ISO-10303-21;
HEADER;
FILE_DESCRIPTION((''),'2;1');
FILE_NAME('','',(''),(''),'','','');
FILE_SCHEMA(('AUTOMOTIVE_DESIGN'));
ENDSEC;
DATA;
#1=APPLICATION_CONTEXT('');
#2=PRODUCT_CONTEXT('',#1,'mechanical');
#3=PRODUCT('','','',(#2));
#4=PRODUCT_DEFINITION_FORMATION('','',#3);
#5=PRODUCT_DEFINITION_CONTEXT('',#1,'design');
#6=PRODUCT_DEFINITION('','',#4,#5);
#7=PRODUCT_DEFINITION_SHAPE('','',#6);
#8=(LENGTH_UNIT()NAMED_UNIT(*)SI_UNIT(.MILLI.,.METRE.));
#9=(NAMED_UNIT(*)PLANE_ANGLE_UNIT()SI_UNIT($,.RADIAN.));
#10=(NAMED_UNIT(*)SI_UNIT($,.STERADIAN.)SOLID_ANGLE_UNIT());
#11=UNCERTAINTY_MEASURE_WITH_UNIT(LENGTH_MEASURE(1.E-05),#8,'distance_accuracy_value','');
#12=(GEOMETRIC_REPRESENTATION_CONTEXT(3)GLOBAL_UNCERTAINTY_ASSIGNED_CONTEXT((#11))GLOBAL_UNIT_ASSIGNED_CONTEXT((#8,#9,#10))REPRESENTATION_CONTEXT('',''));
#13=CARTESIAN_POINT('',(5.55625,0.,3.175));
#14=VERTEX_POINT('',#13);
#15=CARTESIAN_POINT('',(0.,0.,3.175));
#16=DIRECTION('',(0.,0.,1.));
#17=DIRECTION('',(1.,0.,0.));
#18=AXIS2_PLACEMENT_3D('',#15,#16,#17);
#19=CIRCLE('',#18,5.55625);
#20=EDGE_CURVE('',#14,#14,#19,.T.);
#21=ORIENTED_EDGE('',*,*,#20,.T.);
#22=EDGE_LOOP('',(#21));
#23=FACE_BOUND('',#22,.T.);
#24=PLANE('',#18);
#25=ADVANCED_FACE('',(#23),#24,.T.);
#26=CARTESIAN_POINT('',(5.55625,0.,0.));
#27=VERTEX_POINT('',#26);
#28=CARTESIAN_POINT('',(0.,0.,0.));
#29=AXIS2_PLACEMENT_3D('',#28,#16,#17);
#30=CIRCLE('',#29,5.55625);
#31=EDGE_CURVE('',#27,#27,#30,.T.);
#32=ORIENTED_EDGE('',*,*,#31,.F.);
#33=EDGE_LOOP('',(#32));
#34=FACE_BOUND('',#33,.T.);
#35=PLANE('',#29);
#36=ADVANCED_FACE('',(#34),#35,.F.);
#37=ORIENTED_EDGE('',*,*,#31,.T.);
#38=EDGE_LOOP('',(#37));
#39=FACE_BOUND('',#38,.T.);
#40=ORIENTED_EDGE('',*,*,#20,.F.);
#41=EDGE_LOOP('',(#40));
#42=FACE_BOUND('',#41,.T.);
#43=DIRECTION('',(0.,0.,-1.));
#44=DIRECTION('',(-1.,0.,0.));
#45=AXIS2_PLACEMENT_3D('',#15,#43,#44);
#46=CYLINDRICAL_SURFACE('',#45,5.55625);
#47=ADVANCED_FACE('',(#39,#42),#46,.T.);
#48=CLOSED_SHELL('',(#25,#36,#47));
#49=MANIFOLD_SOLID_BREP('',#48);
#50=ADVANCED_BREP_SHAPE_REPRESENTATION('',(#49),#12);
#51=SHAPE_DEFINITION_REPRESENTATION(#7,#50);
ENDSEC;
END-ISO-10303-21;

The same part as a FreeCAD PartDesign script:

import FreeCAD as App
import Part
import Sketcher
from FreeCAD import Vector
Q = App.Units.Quantity

doc = App.newDocument("Part")
body = doc.addObject("PartDesign::Body", "Body")

# Sketch on XY plane
sketch1 = body.newObject("Sketcher::SketchObject", "Sketch")
sketch1.AttachmentSupport = (doc.getObject("XY_Plane"), [""])
sketch1.MapMode = "FlatFace"
sketch1.addGeometry(Part.Circle(Vector(0, 0, 0), Vector(0, 0, 1), 5.55625), False)
sketch1.addConstraint(Sketcher.Constraint("Coincident", 0, 3, -1, 1))
sketch1.addConstraint(Sketcher.Constraint("Diameter", 0, Q("0.4375 in")))
pad1 = body.newObject("PartDesign::Pad", "Pad")
pad1.Profile = sketch1
pad1.Length = Q("0.125 in")

doc.recompute()
